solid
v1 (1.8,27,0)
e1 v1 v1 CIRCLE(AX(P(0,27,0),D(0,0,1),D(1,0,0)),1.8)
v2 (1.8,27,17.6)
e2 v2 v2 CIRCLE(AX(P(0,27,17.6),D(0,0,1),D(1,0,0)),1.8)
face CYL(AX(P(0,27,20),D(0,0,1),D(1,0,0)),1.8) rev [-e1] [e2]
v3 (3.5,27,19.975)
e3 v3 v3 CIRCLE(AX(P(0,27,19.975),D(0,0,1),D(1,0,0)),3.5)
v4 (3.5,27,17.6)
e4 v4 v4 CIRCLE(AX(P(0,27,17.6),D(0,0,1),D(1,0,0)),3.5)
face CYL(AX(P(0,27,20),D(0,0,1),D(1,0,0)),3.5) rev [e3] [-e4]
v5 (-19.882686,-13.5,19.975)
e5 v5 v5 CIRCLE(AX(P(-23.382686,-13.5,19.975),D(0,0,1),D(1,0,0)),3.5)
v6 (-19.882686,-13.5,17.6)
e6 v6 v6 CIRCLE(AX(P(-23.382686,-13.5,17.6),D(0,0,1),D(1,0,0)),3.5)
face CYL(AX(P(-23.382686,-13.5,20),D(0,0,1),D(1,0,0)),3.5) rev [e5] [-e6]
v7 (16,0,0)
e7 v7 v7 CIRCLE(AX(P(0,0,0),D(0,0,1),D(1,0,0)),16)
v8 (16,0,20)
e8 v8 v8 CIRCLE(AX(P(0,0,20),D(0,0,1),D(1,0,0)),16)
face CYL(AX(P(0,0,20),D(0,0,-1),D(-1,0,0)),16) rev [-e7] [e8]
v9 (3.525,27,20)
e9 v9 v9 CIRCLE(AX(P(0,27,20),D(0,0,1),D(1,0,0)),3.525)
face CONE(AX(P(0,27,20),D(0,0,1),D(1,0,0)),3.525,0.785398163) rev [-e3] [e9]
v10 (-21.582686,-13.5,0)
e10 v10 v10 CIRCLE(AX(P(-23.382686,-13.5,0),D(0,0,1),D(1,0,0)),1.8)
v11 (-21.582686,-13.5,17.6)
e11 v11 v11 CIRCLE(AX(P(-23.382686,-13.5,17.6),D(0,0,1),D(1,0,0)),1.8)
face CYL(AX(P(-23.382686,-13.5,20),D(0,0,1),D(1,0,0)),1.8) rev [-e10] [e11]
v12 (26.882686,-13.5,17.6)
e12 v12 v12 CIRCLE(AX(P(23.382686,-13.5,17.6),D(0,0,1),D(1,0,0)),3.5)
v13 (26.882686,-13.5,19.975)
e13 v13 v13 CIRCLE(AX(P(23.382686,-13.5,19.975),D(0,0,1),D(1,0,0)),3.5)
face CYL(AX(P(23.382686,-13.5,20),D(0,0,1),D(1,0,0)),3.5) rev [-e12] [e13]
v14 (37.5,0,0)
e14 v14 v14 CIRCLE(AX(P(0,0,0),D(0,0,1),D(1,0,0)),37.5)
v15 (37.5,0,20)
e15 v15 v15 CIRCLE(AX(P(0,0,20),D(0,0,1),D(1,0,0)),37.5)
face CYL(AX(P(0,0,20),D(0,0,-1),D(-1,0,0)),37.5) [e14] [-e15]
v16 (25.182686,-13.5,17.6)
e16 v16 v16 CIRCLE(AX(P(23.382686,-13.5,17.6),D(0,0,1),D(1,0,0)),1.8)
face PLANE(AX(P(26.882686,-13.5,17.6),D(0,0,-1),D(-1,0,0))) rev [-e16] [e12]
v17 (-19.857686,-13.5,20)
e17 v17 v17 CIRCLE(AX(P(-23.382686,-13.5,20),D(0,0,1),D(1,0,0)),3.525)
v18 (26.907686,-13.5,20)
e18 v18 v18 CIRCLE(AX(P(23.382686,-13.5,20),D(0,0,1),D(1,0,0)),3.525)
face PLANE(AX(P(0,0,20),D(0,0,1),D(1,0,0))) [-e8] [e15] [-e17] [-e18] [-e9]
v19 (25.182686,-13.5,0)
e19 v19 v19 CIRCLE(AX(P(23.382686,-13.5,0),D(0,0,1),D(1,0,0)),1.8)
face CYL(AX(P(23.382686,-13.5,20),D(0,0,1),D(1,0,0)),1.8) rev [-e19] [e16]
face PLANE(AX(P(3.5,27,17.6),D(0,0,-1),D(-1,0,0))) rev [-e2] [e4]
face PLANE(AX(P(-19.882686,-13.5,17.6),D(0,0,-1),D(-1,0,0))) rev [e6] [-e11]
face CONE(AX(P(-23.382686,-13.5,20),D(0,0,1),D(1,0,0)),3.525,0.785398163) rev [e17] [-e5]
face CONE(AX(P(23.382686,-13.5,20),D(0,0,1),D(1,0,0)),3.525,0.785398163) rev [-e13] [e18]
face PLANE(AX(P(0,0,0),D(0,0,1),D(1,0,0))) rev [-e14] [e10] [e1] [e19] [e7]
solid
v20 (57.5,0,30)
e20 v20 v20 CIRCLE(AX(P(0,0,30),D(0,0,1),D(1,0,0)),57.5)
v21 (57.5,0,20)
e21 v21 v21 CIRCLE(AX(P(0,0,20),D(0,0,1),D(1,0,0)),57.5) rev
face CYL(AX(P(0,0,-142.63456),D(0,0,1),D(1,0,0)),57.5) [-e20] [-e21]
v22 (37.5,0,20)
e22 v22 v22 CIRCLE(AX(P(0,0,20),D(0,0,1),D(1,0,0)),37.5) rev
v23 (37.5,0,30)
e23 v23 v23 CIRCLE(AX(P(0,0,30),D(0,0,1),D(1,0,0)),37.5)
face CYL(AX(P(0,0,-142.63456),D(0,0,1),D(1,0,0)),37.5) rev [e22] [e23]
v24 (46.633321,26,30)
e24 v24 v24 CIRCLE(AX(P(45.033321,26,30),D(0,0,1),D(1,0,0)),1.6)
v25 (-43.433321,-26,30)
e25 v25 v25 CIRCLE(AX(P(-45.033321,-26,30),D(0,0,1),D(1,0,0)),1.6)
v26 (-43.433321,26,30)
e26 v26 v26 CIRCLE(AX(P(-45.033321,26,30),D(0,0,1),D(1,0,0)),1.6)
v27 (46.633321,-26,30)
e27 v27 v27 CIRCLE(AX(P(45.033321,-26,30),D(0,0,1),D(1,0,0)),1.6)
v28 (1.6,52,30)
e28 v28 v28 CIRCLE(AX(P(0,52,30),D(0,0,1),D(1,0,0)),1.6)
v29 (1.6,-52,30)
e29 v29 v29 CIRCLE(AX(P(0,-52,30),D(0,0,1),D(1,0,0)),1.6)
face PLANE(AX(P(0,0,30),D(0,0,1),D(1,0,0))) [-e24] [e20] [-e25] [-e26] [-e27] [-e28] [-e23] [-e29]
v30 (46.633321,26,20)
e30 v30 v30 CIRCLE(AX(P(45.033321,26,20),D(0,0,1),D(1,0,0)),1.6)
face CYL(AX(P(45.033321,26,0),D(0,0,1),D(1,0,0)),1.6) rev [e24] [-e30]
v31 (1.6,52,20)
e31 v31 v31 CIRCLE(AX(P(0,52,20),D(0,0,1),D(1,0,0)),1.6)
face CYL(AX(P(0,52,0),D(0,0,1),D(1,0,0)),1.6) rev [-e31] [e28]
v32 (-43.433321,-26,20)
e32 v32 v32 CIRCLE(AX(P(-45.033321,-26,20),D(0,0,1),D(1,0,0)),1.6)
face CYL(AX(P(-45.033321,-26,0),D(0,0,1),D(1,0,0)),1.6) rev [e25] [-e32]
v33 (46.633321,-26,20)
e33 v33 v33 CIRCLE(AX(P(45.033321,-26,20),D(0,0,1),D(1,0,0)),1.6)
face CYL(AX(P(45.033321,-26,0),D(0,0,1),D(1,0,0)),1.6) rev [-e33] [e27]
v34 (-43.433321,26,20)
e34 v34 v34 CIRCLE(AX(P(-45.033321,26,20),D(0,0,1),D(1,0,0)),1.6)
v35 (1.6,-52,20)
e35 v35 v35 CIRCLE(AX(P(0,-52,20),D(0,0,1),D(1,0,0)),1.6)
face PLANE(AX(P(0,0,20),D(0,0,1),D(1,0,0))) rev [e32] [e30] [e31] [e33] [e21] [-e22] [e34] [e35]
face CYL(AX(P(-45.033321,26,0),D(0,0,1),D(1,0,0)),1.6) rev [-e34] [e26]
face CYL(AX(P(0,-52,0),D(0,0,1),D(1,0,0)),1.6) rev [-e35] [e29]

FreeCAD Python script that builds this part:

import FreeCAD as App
import Part
import Sketcher

V = App.Vector
Q = App.Units.Quantity

doc = App.newDocument("Part")
params = doc.addObject("Spreadsheet::Sheet", "Params")
for row, (alias, value) in enumerate([
    ("sketch1_diameter", "75 mm"),
    ("sketch1_diameter2", "32 mm"),
    ("pad1_length", "20 mm"),
    ("sketch2_height", "20 mm"),
    ("sketch2_width", "1.7 mm"),
    ("sketch2_width2", "1.8 mm"),
    ("sketch2_height2", "17.6 mm"),
    ("groove_angle", "360 deg"),
    ("linearpattern_pitch", "46.765372 mm"),
    ("linearpattern2_pitch", "46.765372 mm"),
    ("sketch3_diameter", "115 mm"),
    ("sketch3_diameter2", "75 mm"),
    ("pad2_length", "10 mm"),
    ("sketch4_diameter", "3.2 mm"),
], start=1):
    params.set(f"A{row}", alias)
    params.set(f"B{row}", "=" + value)
    params.setAlias(f"B{row}", alias)

body = doc.addObject("PartDesign::Body", "Body")

# Sketch on XY plane
sketch1 = doc.addObject("Sketcher::SketchObject", "Sketch")
body.addObject(sketch1)
sketch1.AttachmentSupport = (doc.XY_Plane, [""])
sketch1.MapMode = "FlatFace"
sketch1.addGeometry([
    Part.Circle(V(0, 0, 0), V(0, 0, 1), 38),
    Part.Circle(V(0, 0, 0), V(0, 0, 1), 16),
], False)
sketch1.addConstraint([
    Sketcher.Constraint("Coincident", 0, 3, -1, 1),
    Sketcher.Constraint("Coincident", 1, 3, -1, 1),
    Sketcher.Constraint("Diameter", 0, 75.0),
    Sketcher.Constraint("Diameter", 1, 32.0),
])
sketch1.setExpression("Constraints[2]", "Params.sketch1_diameter")
sketch1.setExpression("Constraints[3]", "Params.sketch1_diameter2")
pad1 = doc.addObject("PartDesign::Pad", "Pad")
body.addObject(pad1)
pad1.Profile = sketch1
pad1.setExpression("Length", "Params.pad1_length")

# Sketch on YZ plane
sketch2 = doc.addObject("Sketcher::SketchObject", "Sketch001")
body.addObject(sketch2)
sketch2.AttachmentSupport = (doc.YZ_Plane, [""])
sketch2.MapMode = "FlatFace"
sketch2.addGeometry([
    Part.LineSegment(V(27, 0, 0), V(27, 20, 0)),  # 0
    Part.LineSegment(V(27, 20, 0), V(23.475, 20, 0)),  # 1
    Part.LineSegment(V(23.475, 20, 0), V(23.5, 19.975, 0)),  # 2
    Part.LineSegment(V(23.5, 19.975, 0), V(23.5, 17.6, 0)),  # 3
    Part.LineSegment(V(23.5, 17.6, 0), V(25.2, 17.6, 0)),  # 4
    Part.LineSegment(V(25.2, 17.6, 0), V(25.2, 0, 0)),  # 5
    Part.LineSegment(V(25.2, 0, 0), V(27, 0, 0)),  # 6
], False)
sketch2.addGeometry(Part.LineSegment(V(27, 20, 0), V(27, 0, 0)), True)  # axis
sketch2.addConstraint([
    Sketcher.Constraint("Coincident", 0, 2, 1, 1),
    Sketcher.Constraint("Coincident", 1, 2, 2, 1),
    Sketcher.Constraint("Coincident", 2, 2, 3, 1),
    Sketcher.Constraint("Coincident", 3, 2, 4, 1),
    Sketcher.Constraint("Coincident", 4, 2, 5, 1),
    Sketcher.Constraint("Coincident", 5, 2, 6, 1),
    Sketcher.Constraint("Coincident", 6, 2, 0, 1),
    Sketcher.Constraint("Vertical", 0),
    Sketcher.Constraint("Horizontal", 1),
    Sketcher.Constraint("Vertical", 3),
    Sketcher.Constraint("Horizontal", 4),
    Sketcher.Constraint("Vertical", 5),
    Sketcher.Constraint("Horizontal", 6),
    Sketcher.Constraint("Vertical", 7),
    Sketcher.Constraint("Coincident", 7, 1, 0, 2),
    Sketcher.Constraint("PointOnObject", 5, 2, -1),
    Sketcher.Constraint("PointOnObject", 7, 2, -1),
    Sketcher.Constraint("DistanceY", 0, 1, 0, 2, 20.0),
    Sketcher.Constraint("Angle", 2, Q("-45 deg")),
    Sketcher.Constraint("DistanceX", 4, 1, 4, 2, 1.7),
    Sketcher.Constraint("DistanceX", 6, 1, 6, 2, 1.8),
    Sketcher.Constraint("DistanceY", 5, 2, 5, 1, 17.6),
    Sketcher.Constraint("DistanceX", -1, 1, 0, 2, 27.0),
    Sketcher.Constraint("DistanceX", 1, 2, 1, 1, 3.525),
])
sketch2.setExpression("Constraints[17]", "Params.sketch2_height")
sketch2.setExpression("Constraints[19]", "Params.sketch2_width")
sketch2.setExpression("Constraints[20]", "Params.sketch2_width2")
sketch2.setExpression("Constraints[21]", "Params.sketch2_height2")
groove = doc.addObject("PartDesign::Groove", "Groove")
body.addObject(groove)
groove.Profile = sketch2
groove.ReferenceAxis = (sketch2, ["Axis0"])
groove.setExpression("Angle", "Params.groove_angle")
doc.recompute()

datumline = doc.addObject("PartDesign::Line", "DatumLine")
body.addObject(datumline)
datumline.Placement = App.Placement(V(0, 0, 0), App.Rotation(V(0, 0, 1), V(-0.5, -0.866025404, 0)))
linearpattern = doc.addObject("PartDesign::LinearPattern", "LinearPattern")
body.addObject(linearpattern)
linearpattern.Originals = [groove]
linearpattern.Direction = (datumline, [""])
linearpattern.Mode = "offset"
linearpattern.setExpression("Offset", "Params.linearpattern_pitch")
linearpattern.Occurrences = 2
body.Tip = linearpattern
doc.recompute()

datumline2 = doc.addObject("PartDesign::Line", "DatumLine001")
body.addObject(datumline2)
datumline2.Placement = App.Placement(V(0, 0, 0), App.Rotation(V(0, 0, 1), V(0.5, -0.866025404, 0)))
linearpattern2 = doc.addObject("PartDesign::LinearPattern", "LinearPattern001")
body.addObject(linearpattern2)
linearpattern2.Originals = [groove]
linearpattern2.Direction = (datumline2, [""])
linearpattern2.Mode = "offset"
linearpattern2.setExpression("Offset", "Params.linearpattern2_pitch")
linearpattern2.Occurrences = 2
body.Tip = linearpattern2
body2 = doc.addObject("PartDesign::Body", "Body001")

# Sketch on XY plane
sketch3 = doc.addObject("Sketcher::SketchObject", "Sketch002")
body2.addObject(sketch3)
sketch3.AttachmentSupport = (doc.getObject("XY_Plane001"), [""])
sketch3.MapMode = "FlatFace"
sketch3.AttachmentOffset = App.Placement(V(0, 0, 30), App.Rotation())
sketch3.addGeometry([
    Part.Circle(V(0, 0, 0), V(0, 0, 1), 58),
    Part.Circle(V(0, 0, 0), V(0, 0, 1), 38),
], False)
sketch3.addConstraint([
    Sketcher.Constraint("Coincident", 0, 3, -1, 1),
    Sketcher.Constraint("Coincident", 1, 3, -1, 1),
    Sketcher.Constraint("Diameter", 0, 115.0),
    Sketcher.Constraint("Diameter", 1, 75.0),
])
sketch3.setExpression("Constraints[2]", "Params.sketch3_diameter")
sketch3.setExpression("Constraints[3]", "Params.sketch3_diameter2")
pad2 = doc.addObject("PartDesign::Pad", "Pad001")
body2.addObject(pad2)
pad2.Profile = sketch3
pad2.setExpression("Length", "Params.pad2_length")
pad2.Reversed = True

# Sketch on XY plane
sketch4 = doc.addObject("Sketcher::SketchObject", "Sketch003")
body2.addObject(sketch4)
sketch4.AttachmentSupport = (doc.getObject("XY_Plane001"), [""])
sketch4.MapMode = "FlatFace"
sketch4.AttachmentOffset = App.Placement(V(0, 0, 30), App.Rotation())
sketch4.addGeometry([
    Part.Circle(V(0, 52, 0), V(0, 0, 1), 1.6),  # 0
    Part.Circle(V(45, 26, 0), V(0, 0, 1), 1.6),  # 1
    Part.Circle(V(45, -26, 0), V(0, 0, 1), 1.6),  # 2
    Part.Circle(V(0, -52, 0), V(0, 0, 1), 1.6),  # 3
    Part.Circle(V(-45, -26, 0), V(0, 0, 1), 1.6),  # 4
    Part.Circle(V(-45, 26, 0), V(0, 0, 1), 1.6),  # 5
], False)
sketch4.addConstraint([
    Sketcher.Constraint("Equal", 0, 1),
    Sketcher.Constraint("Equal", 1, 2),
    Sketcher.Constraint("Equal", 2, 3),
    Sketcher.Constraint("Equal", 3, 4),
    Sketcher.Constraint("Equal", 4, 5),
    Sketcher.Constraint("Symmetric", 0, 3, 3, 3, -1, 1),
    Sketcher.Constraint("Symmetric", 1, 3, 4, 3, -1, 1),
    Sketcher.Constraint("Symmetric", 2, 3, 5, 3, -1, 1),
    Sketcher.Constraint("Symmetric", 2, 3, 4, 3, -2),
    Sketcher.Constraint("PointOnObject", 0, 3, -2),
    Sketcher.Constraint("Diameter", 0, 3.2),
    Sketcher.Constraint("DistanceY", -1, 1, 0, 3, 52.0),
    Sketcher.Constraint("DistanceY", -1, 1, 1, 3, 26.0),
    Sketcher.Constraint("DistanceX", -1, 1, 1, 3, 45.033321),
])
sketch4.setExpression("Constraints[10]", "Params.sketch4_diameter")
pocket1 = doc.addObject("PartDesign::Pocket", "Pocket")
body2.addObject(pocket1)
pocket1.Profile = sketch4
pocket1.Type = "ThroughAll"

doc.recompute()
